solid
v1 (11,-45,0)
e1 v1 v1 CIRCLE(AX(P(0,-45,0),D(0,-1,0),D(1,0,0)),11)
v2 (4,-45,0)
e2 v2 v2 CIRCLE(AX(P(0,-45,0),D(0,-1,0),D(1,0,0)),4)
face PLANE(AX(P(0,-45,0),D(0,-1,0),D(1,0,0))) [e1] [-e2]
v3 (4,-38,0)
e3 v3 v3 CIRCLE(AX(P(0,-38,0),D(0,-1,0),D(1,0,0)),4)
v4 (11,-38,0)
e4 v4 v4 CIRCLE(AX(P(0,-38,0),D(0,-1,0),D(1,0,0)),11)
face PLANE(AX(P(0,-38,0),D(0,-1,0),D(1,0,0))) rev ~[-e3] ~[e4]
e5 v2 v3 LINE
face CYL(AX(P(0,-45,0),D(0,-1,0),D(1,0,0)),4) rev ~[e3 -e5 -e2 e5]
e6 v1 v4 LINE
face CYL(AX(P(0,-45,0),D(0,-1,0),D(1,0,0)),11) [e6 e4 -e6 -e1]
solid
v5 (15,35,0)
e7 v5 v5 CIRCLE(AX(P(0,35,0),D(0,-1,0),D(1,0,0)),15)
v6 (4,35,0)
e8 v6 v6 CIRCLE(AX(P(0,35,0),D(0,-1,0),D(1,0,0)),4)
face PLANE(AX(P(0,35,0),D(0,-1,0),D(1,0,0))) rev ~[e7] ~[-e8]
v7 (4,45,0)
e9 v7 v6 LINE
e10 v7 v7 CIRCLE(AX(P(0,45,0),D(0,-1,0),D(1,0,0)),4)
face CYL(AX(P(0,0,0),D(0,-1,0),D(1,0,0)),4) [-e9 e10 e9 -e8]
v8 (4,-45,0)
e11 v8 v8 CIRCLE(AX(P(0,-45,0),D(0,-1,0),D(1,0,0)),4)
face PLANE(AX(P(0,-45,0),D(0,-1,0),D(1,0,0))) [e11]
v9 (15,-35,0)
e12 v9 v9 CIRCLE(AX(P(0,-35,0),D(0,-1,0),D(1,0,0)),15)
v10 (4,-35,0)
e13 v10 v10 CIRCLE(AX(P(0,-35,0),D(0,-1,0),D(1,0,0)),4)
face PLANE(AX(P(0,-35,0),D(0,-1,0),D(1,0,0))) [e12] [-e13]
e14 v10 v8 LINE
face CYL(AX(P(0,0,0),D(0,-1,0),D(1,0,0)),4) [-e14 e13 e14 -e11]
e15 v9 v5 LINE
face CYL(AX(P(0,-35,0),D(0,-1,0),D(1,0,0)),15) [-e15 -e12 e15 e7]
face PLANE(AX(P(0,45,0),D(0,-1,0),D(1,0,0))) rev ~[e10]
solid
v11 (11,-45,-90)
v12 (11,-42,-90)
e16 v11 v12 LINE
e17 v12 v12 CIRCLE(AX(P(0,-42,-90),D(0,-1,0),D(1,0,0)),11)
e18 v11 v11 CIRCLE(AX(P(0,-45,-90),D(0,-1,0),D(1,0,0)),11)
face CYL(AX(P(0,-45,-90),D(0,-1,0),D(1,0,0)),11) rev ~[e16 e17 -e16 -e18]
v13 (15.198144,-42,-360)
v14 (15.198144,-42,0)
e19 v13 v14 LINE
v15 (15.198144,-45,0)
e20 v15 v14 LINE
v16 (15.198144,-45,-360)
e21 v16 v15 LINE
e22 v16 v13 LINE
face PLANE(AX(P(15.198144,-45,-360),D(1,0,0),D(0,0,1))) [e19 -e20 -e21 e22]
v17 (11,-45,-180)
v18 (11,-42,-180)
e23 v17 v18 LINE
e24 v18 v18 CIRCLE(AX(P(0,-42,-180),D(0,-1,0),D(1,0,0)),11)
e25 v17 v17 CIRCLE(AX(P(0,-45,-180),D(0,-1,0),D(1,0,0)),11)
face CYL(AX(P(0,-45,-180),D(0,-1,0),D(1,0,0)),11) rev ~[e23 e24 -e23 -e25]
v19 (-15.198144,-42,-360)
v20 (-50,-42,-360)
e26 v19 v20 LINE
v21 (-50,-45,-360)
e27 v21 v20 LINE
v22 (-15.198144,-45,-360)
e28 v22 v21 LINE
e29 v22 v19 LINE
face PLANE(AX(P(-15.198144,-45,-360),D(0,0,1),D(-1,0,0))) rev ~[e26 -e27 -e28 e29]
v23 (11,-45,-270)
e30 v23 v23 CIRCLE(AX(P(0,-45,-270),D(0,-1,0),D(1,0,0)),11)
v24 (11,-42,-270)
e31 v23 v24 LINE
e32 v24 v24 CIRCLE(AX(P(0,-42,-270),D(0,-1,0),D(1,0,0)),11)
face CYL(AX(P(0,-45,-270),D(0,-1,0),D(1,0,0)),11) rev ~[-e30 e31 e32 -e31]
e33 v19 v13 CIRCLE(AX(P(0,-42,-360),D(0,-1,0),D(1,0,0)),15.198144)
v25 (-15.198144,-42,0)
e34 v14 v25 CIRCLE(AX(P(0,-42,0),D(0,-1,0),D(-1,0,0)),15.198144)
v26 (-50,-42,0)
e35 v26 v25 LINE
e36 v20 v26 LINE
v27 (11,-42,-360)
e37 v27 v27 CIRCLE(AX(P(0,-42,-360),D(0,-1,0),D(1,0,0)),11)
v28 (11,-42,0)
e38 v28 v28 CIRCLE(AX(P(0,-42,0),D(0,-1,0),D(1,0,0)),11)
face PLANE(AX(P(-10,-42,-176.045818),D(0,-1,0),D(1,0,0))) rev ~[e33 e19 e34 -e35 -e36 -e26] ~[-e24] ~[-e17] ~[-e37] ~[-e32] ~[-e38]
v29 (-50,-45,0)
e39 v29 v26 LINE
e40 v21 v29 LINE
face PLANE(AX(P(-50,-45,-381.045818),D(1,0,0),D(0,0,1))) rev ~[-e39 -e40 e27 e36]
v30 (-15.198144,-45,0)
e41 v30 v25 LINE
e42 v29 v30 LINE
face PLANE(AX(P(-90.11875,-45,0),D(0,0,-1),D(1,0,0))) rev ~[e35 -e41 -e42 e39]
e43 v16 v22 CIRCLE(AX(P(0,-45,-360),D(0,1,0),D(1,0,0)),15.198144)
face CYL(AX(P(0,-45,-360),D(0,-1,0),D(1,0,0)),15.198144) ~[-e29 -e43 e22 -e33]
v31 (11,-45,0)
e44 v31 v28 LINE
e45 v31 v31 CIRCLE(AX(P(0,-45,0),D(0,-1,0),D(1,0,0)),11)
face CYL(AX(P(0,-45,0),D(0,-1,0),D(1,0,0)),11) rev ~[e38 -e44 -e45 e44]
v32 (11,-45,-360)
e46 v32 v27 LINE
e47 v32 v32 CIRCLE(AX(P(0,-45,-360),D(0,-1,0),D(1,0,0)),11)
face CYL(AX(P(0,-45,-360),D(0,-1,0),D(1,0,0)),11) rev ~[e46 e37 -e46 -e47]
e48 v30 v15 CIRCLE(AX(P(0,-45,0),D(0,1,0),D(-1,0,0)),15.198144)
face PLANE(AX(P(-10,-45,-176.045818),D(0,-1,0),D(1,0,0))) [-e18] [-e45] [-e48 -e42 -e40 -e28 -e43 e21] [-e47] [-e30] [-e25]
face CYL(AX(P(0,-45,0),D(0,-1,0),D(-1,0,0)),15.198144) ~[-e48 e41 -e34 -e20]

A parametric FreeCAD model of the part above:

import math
import FreeCAD as App
import Part
import Sketcher

V = App.Vector


def add_polygon(sketch, points):
    """Adds a closed chain of lines whose ends are joined by coincident constraints."""
    first, n = sketch.GeometryCount, len(points)
    for a, b in zip(points, points[1:] + points[:1]):
        sketch.addGeometry(Part.LineSegment(App.Vector(*a, 0), App.Vector(*b, 0)), False)
    for i in range(n):
        sketch.addConstraint(Sketcher.Constraint("Coincident", first + i, 2, first + (i + 1) % n, 1))

doc = App.newDocument("Part")
body = doc.addObject("PartDesign::Body", "Body")

sketch1 = body.newObject("Sketcher::SketchObject", "Sketch")
sketch1.AttachmentSupport = (doc.getObject("XZ_Plane"), [""])
sketch1.MapMode = "FlatFace"
sketch1.addGeometry(Part.Circle(V(0, 0, 0), V(0, 0, 1), 4), False)
sketch1.addConstraint(Sketcher.Constraint("Coincident", 0, 3, -1, 1))
sketch1.addConstraint(Sketcher.Constraint("Diameter", 0, 8.0))
pad1 = body.newObject("PartDesign::Pad", "Pad")
pad1.Profile = sketch1
pad1.Length = 90
pad1.Midplane = True

sketch2 = body.newObject("Sketcher::SketchObject", "Sketch001")
sketch2.AttachmentSupport = (doc.getObject("XZ_Plane"), [""])
sketch2.MapMode = "FlatFace"
sketch2.AttachmentOffset = App.Placement(V(0, 0, 35), App.Rotation())
sketch2.addGeometry(Part.Circle(V(0, 0, 0), V(0, 0, 1), 15), False)
sketch2.addConstraint(Sketcher.Constraint("Coincident", 0, 3, -1, 1))
sketch2.addConstraint(Sketcher.Constraint("Diameter", 0, 30.0))
pad2 = body.newObject("PartDesign::Pad", "Pad001")
pad2.Profile = sketch2
pad2.Length = 70
pad2.Reversed = True
body2 = doc.addObject("PartDesign::Body", "Body001")

sketch3 = body2.newObject("Sketcher::SketchObject", "Sketch002")
sketch3.AttachmentSupport = (doc.getObject("XZ_Plane001"), [""])
sketch3.MapMode = "FlatFace"
sketch3.AttachmentOffset = App.Placement(V(0, 0, 45), App.Rotation())
sketch3.addGeometry(Part.Circle(V(0, 0, 0), V(0, 0, 1), 11), False)
sketch3.addGeometry(Part.Circle(V(0, 0, 0), V(0, 0, 1), 4), False)
sketch3.addConstraint(Sketcher.Constraint("Coincident", 0, 3, -1, 1))
sketch3.addConstraint(Sketcher.Constraint("Coincident", 1, 3, -1, 1))
sketch3.addConstraint(Sketcher.Constraint("Diameter", 0, 22.0))
sketch3.addConstraint(Sketcher.Constraint("Diameter", 1, 8.0))
pad3 = body2.newObject("PartDesign::Pad", "Pad002")
pad3.Profile = sketch3
pad3.Length = 7
pad3.Reversed = True
body3 = doc.addObject("PartDesign::Body", "Body002")

sketch4 = body3.newObject("Sketcher::SketchObject", "Sketch003")
sketch4.AttachmentSupport = (doc.getObject("XZ_Plane002"), [""])
sketch4.MapMode = "FlatFace"
sketch4.AttachmentOffset = App.Placement(V(0, 0, 45), App.Rotation())
add_polygon(sketch4, [(-50, 29), (-50, -381), (30, -381), (30, 29)])
sketch4.addGeometry(Part.Circle(V(0, -360, 0), V(0, 0, 1), 11), False)
sketch4.addGeometry(Part.Circle(V(0, -270, 0), V(0, 0, 1), 11), False)
sketch4.addGeometry(Part.Circle(V(0, -180, 0), V(0, 0, 1), 11), False)
sketch4.addGeometry(Part.Circle(V(0, -90, 0), V(0, 0, 1), 11), False)
sketch4.addGeometry(Part.Circle(V(0, 0, 0), V(0, 0, 1), 11), False)
sketch4.addConstraint(Sketcher.Constraint("Vertical", 0))
sketch4.addConstraint(Sketcher.Constraint("Horizontal", 1))
sketch4.addConstraint(Sketcher.Constraint("Vertical", 2))
sketch4.addConstraint(Sketcher.Constraint("Horizontal", 3))
sketch4.addConstraint(Sketcher.Constraint("Coincident", 8, 3, -1, 1))
sketch4.addConstraint(Sketcher.Constraint("Equal", 4, 5))
sketch4.addConstraint(Sketcher.Constraint("Equal", 5, 6))
sketch4.addConstraint(Sketcher.Constraint("Equal", 6, 7))
sketch4.addConstraint(Sketcher.Constraint("Equal", 7, 8))
sketch4.addConstraint(Sketcher.Constraint("PointOnObject", 4, 3, -2))
sketch4.addConstraint(Sketcher.Constraint("PointOnObject", 5, 3, -2))
sketch4.addConstraint(Sketcher.Constraint("PointOnObject", 6, 3, -2))
sketch4.addConstraint(Sketcher.Constraint("PointOnObject", 7, 3, -2))
sketch4.addConstraint(Sketcher.Constraint("Diameter", 4, 22.0))
sketch4.addConstraint(Sketcher.Constraint("DistanceX", 1, 1, 1, 2, 80.0))
sketch4.addConstraint(Sketcher.Constraint("DistanceY", 0, 2, 0, 1, 410.0))
sketch4.addConstraint(Sketcher.Constraint("DistanceY", 4, 3, -1, 1, 360.0))
sketch4.addConstraint(Sketcher.Constraint("DistanceY", 5, 3, -1, 1, 270.0))
sketch4.addConstraint(Sketcher.Constraint("DistanceY", 6, 3, -1, 1, 180.0))
sketch4.addConstraint(Sketcher.Constraint("DistanceY", 7, 3, -1, 1, 90.0))
sketch4.addConstraint(Sketcher.Constraint("DistanceX", 0, 2, -1, 1, 50.0))
sketch4.addConstraint(Sketcher.Constraint("DistanceY", 0, 2, -1, 1, 381.045818))
pad4 = body3.newObject("PartDesign::Pad", "Pad003")
pad4.Profile = sketch4
pad4.Length = 3
pad4.Reversed = True

sketch5 = body3.newObject("Sketcher::SketchObject", "Sketch004")
sketch5.AttachmentSupport = (doc.getObject("XZ_Plane002"), [""])
sketch5.MapMode = "FlatFace"
sketch5.AttachmentOffset = App.Placement(V(0, 0, 45), App.Rotation())
sketch5.addGeometry(Part.ArcOfCircle(Part.Circle(V(0, 0, 0), V(0, 0, 1), 15), math.radians(0), math.radians(180)), False)
sketch5.addGeometry(Part.LineSegment(V(15, 0, 0), V(15, -360, 0)), False)
sketch5.addGeometry(Part.ArcOfCircle(Part.Circle(V(0, -360, 0), V(0, 0, 1), 15), math.radians(180), math.radians(360)), False)
sketch5.addGeometry(Part.LineSegment(V(-15, -360, 0), V(-50, -360, 0)), False)
sketch5.addGeometry(Part.LineSegment(V(-50, -360, 0), V(-50, -381, 0)), False)
sketch5.addGeometry(Part.LineSegment(V(-50, -381, 0), V(30, -381, 0)), False)
sketch5.addGeometry(Part.LineSegment(V(30, -381, 0), V(30, 46, 0)), False)
sketch5.addGeometry(Part.LineSegment(V(30, 46, 0), V(-85, 57, 0)), False)
sketch5.addGeometry(Part.LineSegment(V(-85, 57, 0), V(-90, 0, 0)), False)
sketch5.addGeometry(Part.LineSegment(V(-90, 0, 0), V(-15, 0, 0)), False)
sketch5.addConstraint(Sketcher.Constraint("Tangent", 0, 1, 1, 1))
sketch5.addConstraint(Sketcher.Constraint("Tangent", 1, 2, 2, 2))
sketch5.addConstraint(Sketcher.Constraint("Coincident", 2, 1, 3, 1))
sketch5.addConstraint(Sketcher.Constraint("Coincident", 3, 2, 4, 1))
sketch5.addConstraint(Sketcher.Constraint("Coincident", 4, 2, 5, 1))
sketch5.addConstraint(Sketcher.Constraint("Coincident", 5, 2, 6, 1))
sketch5.addConstraint(Sketcher.Constraint("Coincident", 6, 2, 7, 1))
sketch5.addConstraint(Sketcher.Constraint("Coincident", 7, 2, 8, 1))
sketch5.addConstraint(Sketcher.Constraint("Coincident", 8, 2, 9, 1))
sketch5.addConstraint(Sketcher.Constraint("Coincident", 9, 2, 0, 2))
sketch5.addConstraint(Sketcher.Constraint("Vertical", 1))
sketch5.addConstraint(Sketcher.Constraint("Horizontal", 3))
sketch5.addConstraint(Sketcher.Constraint("Vertical", 4))
sketch5.addConstraint(Sketcher.Constraint("Horizontal", 5))
sketch5.addConstraint(Sketcher.Constraint("Vertical", 6))
sketch5.addConstraint(Sketcher.Constraint("Horizontal", 9))
sketch5.addConstraint(Sketcher.Constraint("Coincident", 0, 3, -1, 1))
sketch5.addConstraint(Sketcher.Constraint("Equal", 0, 2))
sketch5.addConstraint(Sketcher.Constraint("PointOnObject", 8, 2, -1))
sketch5.addConstraint(Sketcher.Constraint("Perpendicular", 7, 8))
sketch5.addConstraint(Sketcher.Constraint("Horizontal", 1, 2, 2, 1))
sketch5.addConstraint(Sketcher.Constraint("DistanceX", 5, 1, 5, 2, 80.0))
sketch5.addConstraint(Sketcher.Constraint("DistanceY", 1, 2, 1, 1, 360.0))
sketch5.addConstraint(Sketcher.Constraint("DistanceX", 3, 2, -1, 1, 50.0))
sketch5.addConstraint(Sketcher.Constraint("Radius", 0, 15.198144))
sketch5.addConstraint(Sketcher.Constraint("DistanceY", 4, 2, 4, 1, 21.045818))
sketch5.addConstraint(Sketcher.Constraint("DistanceY", 6, 1, 6, 2, 427.081868))
sketch5.addConstraint(Sketcher.Constraint("Distance", 7, 115.209389))
sketch5.addConstraint(Sketcher.Constraint("Distance", 8, 57.224371))
pocket1 = body3.newObject("PartDesign::Pocket", "Pocket")
pocket1.Profile = sketch5
pocket1.Length = 25

doc.recompute()
